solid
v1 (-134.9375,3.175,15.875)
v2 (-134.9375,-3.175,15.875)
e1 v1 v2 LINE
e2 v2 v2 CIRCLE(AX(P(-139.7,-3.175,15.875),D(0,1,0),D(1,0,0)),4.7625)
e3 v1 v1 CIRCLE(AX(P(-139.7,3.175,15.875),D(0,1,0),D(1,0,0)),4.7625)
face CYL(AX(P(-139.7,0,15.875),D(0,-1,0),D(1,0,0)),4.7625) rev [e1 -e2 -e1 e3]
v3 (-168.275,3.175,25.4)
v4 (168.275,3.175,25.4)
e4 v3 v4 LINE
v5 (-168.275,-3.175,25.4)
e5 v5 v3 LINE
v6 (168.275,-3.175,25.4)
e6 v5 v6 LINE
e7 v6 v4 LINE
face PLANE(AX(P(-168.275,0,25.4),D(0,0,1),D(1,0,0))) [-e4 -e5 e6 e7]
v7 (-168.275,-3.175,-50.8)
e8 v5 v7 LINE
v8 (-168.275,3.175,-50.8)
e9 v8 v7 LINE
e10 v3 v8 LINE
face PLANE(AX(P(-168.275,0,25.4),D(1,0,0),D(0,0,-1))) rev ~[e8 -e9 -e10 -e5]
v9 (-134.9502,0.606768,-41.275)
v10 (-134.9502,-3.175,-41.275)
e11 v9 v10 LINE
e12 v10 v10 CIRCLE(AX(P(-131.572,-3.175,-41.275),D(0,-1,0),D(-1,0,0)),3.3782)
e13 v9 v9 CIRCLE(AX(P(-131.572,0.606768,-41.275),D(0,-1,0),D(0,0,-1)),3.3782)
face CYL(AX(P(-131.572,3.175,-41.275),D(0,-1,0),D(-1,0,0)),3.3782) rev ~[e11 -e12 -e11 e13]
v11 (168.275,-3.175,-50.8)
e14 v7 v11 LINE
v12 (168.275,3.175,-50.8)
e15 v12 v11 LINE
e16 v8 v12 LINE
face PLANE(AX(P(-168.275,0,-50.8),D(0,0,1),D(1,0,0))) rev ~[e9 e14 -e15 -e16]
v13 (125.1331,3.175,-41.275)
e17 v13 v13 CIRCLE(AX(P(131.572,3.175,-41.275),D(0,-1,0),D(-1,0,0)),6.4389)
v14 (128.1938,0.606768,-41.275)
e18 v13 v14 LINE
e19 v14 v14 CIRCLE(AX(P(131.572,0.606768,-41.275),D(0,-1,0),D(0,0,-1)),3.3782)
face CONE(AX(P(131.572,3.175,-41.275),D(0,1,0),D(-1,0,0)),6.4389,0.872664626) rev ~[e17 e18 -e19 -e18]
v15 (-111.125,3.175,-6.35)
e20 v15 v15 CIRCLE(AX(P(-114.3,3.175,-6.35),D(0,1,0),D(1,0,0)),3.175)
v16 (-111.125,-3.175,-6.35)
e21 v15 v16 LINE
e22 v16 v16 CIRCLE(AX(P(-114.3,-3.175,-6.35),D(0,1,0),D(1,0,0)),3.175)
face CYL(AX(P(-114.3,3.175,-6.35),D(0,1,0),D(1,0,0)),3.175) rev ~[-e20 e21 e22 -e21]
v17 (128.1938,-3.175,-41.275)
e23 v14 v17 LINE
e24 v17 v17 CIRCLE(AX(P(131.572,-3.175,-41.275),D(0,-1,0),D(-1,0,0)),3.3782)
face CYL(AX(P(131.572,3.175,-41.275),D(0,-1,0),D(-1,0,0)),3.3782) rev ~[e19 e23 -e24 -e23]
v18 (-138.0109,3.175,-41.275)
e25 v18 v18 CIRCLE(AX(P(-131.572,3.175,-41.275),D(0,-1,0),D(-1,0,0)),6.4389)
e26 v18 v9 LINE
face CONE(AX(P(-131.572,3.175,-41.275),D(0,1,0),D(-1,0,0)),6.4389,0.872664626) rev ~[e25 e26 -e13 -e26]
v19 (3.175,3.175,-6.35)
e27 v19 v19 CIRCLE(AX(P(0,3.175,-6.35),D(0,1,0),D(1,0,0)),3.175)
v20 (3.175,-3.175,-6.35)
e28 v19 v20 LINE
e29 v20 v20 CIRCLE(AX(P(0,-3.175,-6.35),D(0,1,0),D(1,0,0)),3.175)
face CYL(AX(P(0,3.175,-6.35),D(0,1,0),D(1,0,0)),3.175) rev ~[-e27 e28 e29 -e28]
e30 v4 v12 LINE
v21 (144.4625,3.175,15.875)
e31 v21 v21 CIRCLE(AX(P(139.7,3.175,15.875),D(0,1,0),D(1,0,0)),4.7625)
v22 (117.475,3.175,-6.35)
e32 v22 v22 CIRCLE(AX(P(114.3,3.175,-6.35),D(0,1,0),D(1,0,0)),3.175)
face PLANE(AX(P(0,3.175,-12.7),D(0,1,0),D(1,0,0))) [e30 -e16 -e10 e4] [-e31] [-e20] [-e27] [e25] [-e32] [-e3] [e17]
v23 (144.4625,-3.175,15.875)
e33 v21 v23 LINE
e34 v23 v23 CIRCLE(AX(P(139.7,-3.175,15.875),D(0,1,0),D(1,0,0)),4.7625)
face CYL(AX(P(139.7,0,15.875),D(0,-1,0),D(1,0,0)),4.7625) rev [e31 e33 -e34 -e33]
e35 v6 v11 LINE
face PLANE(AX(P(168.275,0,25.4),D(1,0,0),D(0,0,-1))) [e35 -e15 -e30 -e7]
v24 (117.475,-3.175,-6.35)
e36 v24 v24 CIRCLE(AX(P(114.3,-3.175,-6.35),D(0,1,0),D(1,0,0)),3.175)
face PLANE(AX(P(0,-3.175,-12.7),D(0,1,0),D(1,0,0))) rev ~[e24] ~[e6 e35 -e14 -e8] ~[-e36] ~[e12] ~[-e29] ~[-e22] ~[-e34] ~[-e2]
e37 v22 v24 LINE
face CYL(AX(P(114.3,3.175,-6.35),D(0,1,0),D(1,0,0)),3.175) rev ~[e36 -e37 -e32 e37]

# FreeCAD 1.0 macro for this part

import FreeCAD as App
import Part
import Sketcher

V = App.Vector
Q = App.Units.Quantity

doc = App.newDocument("Part")
body = doc.addObject("PartDesign::Body", "Body")

sketch1 = body.newObject("Sketcher::SketchObject", "Sketch")
sketch1.AttachmentSupport = (doc.getObject("XZ_Plane"), [""])
sketch1.MapMode = "FlatFace"
sketch1.addGeometry([
    Part.LineSegment(V(-168.3, -50.8, 0), V(-168.3, 25.4, 0)),
    Part.LineSegment(V(-168.3, 25.4, 0), V(168.3, 25.4, 0)),
    Part.LineSegment(V(168.3, 25.4, 0), V(168.3, -50.8, 0)),
    Part.LineSegment(V(168.3, -50.8, 0), V(-168.3, -50.8, 0)),
    Part.Circle(V(-139.7, 15.9, 0), V(0, 0, 1), 4.8),
    Part.Circle(V(139.7, 15.9, 0), V(0, 0, 1), 4.8),
    Part.Circle(V(-131.6, -41.3, 0), V(0, 0, 1), 3.2),
    Part.Circle(V(131.6, -41.3, 0), V(0, 0, 1), 3.2),
], False)
sketch1.addConstraint([
    Sketcher.Constraint("Coincident", 0, 2, 1, 1),
    Sketcher.Constraint("Coincident", 1, 2, 2, 1),
    Sketcher.Constraint("Coincident", 2, 2, 3, 1),
    Sketcher.Constraint("Coincident", 3, 2, 0, 1),
    Sketcher.Constraint("Vertical", 0),
    Sketcher.Constraint("Horizontal", 1),
    Sketcher.Constraint("Vertical", 2),
    Sketcher.Constraint("Horizontal", 3),
    Sketcher.Constraint("Equal", 4, 5),
    Sketcher.Constraint("Equal", 6, 7),
    Sketcher.Constraint("Symmetric", 4, 3, 5, 3, -2),
    Sketcher.Constraint("Symmetric", 6, 3, 7, 3, -2),
    Sketcher.Constraint("Diameter", 6, Q("0.25 in")),
    Sketcher.Constraint("DistanceY", 0, 1, 0, 2, Q("3 in")),
    Sketcher.Constraint("Diameter", 4, Q("0.375 in")),
    Sketcher.Constraint("DistanceY", -1, 1, 0, 2, Q("1 in")),
    Sketcher.Constraint("DistanceX", 4, 3, 5, 3, Q("11 in")),
    Sketcher.Constraint("DistanceX", 1, 1, 1, 2, Q("13.25 in")),
    Sketcher.Constraint("DistanceX", 6, 3, -1, 1, Q("5.18 in")),
    Sketcher.Constraint("DistanceY", 6, 3, 4, 3, Q("2.25 in")),
    Sketcher.Constraint("DistanceY", -1, 1, 4, 3, Q("0.625 in")),
    Sketcher.Constraint("DistanceX", 0, 2, -1, 1, Q("6.625 in")),
])
pad1 = body.newObject("PartDesign::Pad", "Pad")
pad1.Profile = sketch1
pad1.Length = Q("0.25 in")
pad1.Midplane = True

sketch2 = body.newObject("Sketcher::SketchObject", "Sketch001")
sketch2.AttachmentSupport = (doc.getObject("XZ_Plane"), [""])
sketch2.MapMode = "FlatFace"
sketch2.AttachmentOffset = App.Placement(V(0, 0, -0.125 * 25.4), App.Rotation())
sketch2.addGeometry([
    Part.Circle(V(-131.6, -41.3, 0), V(0, 0, 1), 3.4),
    Part.Circle(V(131.6, -41.3, 0), V(0, 0, 1), 3.4),
], False)
sketch2.addConstraint([
    Sketcher.Constraint("Equal", 0, 1),
    Sketcher.Constraint("Symmetric", 0, 3, 1, 3, -2),
    Sketcher.Constraint("Diameter", 0, Q("0.266 in")),
    Sketcher.Constraint("DistanceX", 0, 3, -1, 1, Q("5.18 in")),
    Sketcher.Constraint("DistanceY", 0, 3, -1, 1, Q("1.625 in")),
])
doc.recompute()
hole = body.newObject("PartDesign::Hole", "Hole")
hole.Profile = sketch2
hole.ThreadType = "None"
hole.Diameter = Q("0.266 in")
hole.DepthType = "ThroughAll"
hole.HoleCutType = "Countersink"
hole.HoleCutDiameter = Q("0.507 in")
hole.HoleCutCountersinkAngle = 100
hole.Reversed = True

sketch3 = body.newObject("Sketcher::SketchObject", "Sketch002")
sketch3.AttachmentSupport = (doc.getObject("XZ_Plane"), [""])
sketch3.MapMode = "FlatFace"
sketch3.AttachmentOffset = App.Placement(V(0, 0, -0.125 * 25.4), App.Rotation())
sketch3.addGeometry([
    Part.Circle(V(-114.3, -6.3, 0), V(0, 0, 1), 3.2),
    Part.Circle(V(114.3, -6.3, 0), V(0, 0, 1), 3.2),
    Part.Circle(V(0, -6.3, 0), V(0, 0, 1), 3.2),
], False)
sketch3.addConstraint([
    Sketcher.Constraint("Equal", 0, 1),
    Sketcher.Constraint("Equal", 1, 2),
    Sketcher.Constraint("Symmetric", 0, 3, 1, 3, -2),
    Sketcher.Constraint("PointOnObject", 2, 3, -2),
    Sketcher.Constraint("Horizontal", 1, 3, 2, 3),
    Sketcher.Constraint("Diameter", 0, Q("0.25 in")),
    Sketcher.Constraint("DistanceX", 0, 3, 1, 3, Q("9 in")),
    Sketcher.Constraint("DistanceY", 0, 3, -1, 1, Q("0.25 in")),
])
pocket1 = body.newObject("PartDesign::Pocket", "Pocket")
pocket1.Profile = sketch3
pocket1.Type = "ThroughAll"
pocket1.Midplane = True

doc.recompute()
